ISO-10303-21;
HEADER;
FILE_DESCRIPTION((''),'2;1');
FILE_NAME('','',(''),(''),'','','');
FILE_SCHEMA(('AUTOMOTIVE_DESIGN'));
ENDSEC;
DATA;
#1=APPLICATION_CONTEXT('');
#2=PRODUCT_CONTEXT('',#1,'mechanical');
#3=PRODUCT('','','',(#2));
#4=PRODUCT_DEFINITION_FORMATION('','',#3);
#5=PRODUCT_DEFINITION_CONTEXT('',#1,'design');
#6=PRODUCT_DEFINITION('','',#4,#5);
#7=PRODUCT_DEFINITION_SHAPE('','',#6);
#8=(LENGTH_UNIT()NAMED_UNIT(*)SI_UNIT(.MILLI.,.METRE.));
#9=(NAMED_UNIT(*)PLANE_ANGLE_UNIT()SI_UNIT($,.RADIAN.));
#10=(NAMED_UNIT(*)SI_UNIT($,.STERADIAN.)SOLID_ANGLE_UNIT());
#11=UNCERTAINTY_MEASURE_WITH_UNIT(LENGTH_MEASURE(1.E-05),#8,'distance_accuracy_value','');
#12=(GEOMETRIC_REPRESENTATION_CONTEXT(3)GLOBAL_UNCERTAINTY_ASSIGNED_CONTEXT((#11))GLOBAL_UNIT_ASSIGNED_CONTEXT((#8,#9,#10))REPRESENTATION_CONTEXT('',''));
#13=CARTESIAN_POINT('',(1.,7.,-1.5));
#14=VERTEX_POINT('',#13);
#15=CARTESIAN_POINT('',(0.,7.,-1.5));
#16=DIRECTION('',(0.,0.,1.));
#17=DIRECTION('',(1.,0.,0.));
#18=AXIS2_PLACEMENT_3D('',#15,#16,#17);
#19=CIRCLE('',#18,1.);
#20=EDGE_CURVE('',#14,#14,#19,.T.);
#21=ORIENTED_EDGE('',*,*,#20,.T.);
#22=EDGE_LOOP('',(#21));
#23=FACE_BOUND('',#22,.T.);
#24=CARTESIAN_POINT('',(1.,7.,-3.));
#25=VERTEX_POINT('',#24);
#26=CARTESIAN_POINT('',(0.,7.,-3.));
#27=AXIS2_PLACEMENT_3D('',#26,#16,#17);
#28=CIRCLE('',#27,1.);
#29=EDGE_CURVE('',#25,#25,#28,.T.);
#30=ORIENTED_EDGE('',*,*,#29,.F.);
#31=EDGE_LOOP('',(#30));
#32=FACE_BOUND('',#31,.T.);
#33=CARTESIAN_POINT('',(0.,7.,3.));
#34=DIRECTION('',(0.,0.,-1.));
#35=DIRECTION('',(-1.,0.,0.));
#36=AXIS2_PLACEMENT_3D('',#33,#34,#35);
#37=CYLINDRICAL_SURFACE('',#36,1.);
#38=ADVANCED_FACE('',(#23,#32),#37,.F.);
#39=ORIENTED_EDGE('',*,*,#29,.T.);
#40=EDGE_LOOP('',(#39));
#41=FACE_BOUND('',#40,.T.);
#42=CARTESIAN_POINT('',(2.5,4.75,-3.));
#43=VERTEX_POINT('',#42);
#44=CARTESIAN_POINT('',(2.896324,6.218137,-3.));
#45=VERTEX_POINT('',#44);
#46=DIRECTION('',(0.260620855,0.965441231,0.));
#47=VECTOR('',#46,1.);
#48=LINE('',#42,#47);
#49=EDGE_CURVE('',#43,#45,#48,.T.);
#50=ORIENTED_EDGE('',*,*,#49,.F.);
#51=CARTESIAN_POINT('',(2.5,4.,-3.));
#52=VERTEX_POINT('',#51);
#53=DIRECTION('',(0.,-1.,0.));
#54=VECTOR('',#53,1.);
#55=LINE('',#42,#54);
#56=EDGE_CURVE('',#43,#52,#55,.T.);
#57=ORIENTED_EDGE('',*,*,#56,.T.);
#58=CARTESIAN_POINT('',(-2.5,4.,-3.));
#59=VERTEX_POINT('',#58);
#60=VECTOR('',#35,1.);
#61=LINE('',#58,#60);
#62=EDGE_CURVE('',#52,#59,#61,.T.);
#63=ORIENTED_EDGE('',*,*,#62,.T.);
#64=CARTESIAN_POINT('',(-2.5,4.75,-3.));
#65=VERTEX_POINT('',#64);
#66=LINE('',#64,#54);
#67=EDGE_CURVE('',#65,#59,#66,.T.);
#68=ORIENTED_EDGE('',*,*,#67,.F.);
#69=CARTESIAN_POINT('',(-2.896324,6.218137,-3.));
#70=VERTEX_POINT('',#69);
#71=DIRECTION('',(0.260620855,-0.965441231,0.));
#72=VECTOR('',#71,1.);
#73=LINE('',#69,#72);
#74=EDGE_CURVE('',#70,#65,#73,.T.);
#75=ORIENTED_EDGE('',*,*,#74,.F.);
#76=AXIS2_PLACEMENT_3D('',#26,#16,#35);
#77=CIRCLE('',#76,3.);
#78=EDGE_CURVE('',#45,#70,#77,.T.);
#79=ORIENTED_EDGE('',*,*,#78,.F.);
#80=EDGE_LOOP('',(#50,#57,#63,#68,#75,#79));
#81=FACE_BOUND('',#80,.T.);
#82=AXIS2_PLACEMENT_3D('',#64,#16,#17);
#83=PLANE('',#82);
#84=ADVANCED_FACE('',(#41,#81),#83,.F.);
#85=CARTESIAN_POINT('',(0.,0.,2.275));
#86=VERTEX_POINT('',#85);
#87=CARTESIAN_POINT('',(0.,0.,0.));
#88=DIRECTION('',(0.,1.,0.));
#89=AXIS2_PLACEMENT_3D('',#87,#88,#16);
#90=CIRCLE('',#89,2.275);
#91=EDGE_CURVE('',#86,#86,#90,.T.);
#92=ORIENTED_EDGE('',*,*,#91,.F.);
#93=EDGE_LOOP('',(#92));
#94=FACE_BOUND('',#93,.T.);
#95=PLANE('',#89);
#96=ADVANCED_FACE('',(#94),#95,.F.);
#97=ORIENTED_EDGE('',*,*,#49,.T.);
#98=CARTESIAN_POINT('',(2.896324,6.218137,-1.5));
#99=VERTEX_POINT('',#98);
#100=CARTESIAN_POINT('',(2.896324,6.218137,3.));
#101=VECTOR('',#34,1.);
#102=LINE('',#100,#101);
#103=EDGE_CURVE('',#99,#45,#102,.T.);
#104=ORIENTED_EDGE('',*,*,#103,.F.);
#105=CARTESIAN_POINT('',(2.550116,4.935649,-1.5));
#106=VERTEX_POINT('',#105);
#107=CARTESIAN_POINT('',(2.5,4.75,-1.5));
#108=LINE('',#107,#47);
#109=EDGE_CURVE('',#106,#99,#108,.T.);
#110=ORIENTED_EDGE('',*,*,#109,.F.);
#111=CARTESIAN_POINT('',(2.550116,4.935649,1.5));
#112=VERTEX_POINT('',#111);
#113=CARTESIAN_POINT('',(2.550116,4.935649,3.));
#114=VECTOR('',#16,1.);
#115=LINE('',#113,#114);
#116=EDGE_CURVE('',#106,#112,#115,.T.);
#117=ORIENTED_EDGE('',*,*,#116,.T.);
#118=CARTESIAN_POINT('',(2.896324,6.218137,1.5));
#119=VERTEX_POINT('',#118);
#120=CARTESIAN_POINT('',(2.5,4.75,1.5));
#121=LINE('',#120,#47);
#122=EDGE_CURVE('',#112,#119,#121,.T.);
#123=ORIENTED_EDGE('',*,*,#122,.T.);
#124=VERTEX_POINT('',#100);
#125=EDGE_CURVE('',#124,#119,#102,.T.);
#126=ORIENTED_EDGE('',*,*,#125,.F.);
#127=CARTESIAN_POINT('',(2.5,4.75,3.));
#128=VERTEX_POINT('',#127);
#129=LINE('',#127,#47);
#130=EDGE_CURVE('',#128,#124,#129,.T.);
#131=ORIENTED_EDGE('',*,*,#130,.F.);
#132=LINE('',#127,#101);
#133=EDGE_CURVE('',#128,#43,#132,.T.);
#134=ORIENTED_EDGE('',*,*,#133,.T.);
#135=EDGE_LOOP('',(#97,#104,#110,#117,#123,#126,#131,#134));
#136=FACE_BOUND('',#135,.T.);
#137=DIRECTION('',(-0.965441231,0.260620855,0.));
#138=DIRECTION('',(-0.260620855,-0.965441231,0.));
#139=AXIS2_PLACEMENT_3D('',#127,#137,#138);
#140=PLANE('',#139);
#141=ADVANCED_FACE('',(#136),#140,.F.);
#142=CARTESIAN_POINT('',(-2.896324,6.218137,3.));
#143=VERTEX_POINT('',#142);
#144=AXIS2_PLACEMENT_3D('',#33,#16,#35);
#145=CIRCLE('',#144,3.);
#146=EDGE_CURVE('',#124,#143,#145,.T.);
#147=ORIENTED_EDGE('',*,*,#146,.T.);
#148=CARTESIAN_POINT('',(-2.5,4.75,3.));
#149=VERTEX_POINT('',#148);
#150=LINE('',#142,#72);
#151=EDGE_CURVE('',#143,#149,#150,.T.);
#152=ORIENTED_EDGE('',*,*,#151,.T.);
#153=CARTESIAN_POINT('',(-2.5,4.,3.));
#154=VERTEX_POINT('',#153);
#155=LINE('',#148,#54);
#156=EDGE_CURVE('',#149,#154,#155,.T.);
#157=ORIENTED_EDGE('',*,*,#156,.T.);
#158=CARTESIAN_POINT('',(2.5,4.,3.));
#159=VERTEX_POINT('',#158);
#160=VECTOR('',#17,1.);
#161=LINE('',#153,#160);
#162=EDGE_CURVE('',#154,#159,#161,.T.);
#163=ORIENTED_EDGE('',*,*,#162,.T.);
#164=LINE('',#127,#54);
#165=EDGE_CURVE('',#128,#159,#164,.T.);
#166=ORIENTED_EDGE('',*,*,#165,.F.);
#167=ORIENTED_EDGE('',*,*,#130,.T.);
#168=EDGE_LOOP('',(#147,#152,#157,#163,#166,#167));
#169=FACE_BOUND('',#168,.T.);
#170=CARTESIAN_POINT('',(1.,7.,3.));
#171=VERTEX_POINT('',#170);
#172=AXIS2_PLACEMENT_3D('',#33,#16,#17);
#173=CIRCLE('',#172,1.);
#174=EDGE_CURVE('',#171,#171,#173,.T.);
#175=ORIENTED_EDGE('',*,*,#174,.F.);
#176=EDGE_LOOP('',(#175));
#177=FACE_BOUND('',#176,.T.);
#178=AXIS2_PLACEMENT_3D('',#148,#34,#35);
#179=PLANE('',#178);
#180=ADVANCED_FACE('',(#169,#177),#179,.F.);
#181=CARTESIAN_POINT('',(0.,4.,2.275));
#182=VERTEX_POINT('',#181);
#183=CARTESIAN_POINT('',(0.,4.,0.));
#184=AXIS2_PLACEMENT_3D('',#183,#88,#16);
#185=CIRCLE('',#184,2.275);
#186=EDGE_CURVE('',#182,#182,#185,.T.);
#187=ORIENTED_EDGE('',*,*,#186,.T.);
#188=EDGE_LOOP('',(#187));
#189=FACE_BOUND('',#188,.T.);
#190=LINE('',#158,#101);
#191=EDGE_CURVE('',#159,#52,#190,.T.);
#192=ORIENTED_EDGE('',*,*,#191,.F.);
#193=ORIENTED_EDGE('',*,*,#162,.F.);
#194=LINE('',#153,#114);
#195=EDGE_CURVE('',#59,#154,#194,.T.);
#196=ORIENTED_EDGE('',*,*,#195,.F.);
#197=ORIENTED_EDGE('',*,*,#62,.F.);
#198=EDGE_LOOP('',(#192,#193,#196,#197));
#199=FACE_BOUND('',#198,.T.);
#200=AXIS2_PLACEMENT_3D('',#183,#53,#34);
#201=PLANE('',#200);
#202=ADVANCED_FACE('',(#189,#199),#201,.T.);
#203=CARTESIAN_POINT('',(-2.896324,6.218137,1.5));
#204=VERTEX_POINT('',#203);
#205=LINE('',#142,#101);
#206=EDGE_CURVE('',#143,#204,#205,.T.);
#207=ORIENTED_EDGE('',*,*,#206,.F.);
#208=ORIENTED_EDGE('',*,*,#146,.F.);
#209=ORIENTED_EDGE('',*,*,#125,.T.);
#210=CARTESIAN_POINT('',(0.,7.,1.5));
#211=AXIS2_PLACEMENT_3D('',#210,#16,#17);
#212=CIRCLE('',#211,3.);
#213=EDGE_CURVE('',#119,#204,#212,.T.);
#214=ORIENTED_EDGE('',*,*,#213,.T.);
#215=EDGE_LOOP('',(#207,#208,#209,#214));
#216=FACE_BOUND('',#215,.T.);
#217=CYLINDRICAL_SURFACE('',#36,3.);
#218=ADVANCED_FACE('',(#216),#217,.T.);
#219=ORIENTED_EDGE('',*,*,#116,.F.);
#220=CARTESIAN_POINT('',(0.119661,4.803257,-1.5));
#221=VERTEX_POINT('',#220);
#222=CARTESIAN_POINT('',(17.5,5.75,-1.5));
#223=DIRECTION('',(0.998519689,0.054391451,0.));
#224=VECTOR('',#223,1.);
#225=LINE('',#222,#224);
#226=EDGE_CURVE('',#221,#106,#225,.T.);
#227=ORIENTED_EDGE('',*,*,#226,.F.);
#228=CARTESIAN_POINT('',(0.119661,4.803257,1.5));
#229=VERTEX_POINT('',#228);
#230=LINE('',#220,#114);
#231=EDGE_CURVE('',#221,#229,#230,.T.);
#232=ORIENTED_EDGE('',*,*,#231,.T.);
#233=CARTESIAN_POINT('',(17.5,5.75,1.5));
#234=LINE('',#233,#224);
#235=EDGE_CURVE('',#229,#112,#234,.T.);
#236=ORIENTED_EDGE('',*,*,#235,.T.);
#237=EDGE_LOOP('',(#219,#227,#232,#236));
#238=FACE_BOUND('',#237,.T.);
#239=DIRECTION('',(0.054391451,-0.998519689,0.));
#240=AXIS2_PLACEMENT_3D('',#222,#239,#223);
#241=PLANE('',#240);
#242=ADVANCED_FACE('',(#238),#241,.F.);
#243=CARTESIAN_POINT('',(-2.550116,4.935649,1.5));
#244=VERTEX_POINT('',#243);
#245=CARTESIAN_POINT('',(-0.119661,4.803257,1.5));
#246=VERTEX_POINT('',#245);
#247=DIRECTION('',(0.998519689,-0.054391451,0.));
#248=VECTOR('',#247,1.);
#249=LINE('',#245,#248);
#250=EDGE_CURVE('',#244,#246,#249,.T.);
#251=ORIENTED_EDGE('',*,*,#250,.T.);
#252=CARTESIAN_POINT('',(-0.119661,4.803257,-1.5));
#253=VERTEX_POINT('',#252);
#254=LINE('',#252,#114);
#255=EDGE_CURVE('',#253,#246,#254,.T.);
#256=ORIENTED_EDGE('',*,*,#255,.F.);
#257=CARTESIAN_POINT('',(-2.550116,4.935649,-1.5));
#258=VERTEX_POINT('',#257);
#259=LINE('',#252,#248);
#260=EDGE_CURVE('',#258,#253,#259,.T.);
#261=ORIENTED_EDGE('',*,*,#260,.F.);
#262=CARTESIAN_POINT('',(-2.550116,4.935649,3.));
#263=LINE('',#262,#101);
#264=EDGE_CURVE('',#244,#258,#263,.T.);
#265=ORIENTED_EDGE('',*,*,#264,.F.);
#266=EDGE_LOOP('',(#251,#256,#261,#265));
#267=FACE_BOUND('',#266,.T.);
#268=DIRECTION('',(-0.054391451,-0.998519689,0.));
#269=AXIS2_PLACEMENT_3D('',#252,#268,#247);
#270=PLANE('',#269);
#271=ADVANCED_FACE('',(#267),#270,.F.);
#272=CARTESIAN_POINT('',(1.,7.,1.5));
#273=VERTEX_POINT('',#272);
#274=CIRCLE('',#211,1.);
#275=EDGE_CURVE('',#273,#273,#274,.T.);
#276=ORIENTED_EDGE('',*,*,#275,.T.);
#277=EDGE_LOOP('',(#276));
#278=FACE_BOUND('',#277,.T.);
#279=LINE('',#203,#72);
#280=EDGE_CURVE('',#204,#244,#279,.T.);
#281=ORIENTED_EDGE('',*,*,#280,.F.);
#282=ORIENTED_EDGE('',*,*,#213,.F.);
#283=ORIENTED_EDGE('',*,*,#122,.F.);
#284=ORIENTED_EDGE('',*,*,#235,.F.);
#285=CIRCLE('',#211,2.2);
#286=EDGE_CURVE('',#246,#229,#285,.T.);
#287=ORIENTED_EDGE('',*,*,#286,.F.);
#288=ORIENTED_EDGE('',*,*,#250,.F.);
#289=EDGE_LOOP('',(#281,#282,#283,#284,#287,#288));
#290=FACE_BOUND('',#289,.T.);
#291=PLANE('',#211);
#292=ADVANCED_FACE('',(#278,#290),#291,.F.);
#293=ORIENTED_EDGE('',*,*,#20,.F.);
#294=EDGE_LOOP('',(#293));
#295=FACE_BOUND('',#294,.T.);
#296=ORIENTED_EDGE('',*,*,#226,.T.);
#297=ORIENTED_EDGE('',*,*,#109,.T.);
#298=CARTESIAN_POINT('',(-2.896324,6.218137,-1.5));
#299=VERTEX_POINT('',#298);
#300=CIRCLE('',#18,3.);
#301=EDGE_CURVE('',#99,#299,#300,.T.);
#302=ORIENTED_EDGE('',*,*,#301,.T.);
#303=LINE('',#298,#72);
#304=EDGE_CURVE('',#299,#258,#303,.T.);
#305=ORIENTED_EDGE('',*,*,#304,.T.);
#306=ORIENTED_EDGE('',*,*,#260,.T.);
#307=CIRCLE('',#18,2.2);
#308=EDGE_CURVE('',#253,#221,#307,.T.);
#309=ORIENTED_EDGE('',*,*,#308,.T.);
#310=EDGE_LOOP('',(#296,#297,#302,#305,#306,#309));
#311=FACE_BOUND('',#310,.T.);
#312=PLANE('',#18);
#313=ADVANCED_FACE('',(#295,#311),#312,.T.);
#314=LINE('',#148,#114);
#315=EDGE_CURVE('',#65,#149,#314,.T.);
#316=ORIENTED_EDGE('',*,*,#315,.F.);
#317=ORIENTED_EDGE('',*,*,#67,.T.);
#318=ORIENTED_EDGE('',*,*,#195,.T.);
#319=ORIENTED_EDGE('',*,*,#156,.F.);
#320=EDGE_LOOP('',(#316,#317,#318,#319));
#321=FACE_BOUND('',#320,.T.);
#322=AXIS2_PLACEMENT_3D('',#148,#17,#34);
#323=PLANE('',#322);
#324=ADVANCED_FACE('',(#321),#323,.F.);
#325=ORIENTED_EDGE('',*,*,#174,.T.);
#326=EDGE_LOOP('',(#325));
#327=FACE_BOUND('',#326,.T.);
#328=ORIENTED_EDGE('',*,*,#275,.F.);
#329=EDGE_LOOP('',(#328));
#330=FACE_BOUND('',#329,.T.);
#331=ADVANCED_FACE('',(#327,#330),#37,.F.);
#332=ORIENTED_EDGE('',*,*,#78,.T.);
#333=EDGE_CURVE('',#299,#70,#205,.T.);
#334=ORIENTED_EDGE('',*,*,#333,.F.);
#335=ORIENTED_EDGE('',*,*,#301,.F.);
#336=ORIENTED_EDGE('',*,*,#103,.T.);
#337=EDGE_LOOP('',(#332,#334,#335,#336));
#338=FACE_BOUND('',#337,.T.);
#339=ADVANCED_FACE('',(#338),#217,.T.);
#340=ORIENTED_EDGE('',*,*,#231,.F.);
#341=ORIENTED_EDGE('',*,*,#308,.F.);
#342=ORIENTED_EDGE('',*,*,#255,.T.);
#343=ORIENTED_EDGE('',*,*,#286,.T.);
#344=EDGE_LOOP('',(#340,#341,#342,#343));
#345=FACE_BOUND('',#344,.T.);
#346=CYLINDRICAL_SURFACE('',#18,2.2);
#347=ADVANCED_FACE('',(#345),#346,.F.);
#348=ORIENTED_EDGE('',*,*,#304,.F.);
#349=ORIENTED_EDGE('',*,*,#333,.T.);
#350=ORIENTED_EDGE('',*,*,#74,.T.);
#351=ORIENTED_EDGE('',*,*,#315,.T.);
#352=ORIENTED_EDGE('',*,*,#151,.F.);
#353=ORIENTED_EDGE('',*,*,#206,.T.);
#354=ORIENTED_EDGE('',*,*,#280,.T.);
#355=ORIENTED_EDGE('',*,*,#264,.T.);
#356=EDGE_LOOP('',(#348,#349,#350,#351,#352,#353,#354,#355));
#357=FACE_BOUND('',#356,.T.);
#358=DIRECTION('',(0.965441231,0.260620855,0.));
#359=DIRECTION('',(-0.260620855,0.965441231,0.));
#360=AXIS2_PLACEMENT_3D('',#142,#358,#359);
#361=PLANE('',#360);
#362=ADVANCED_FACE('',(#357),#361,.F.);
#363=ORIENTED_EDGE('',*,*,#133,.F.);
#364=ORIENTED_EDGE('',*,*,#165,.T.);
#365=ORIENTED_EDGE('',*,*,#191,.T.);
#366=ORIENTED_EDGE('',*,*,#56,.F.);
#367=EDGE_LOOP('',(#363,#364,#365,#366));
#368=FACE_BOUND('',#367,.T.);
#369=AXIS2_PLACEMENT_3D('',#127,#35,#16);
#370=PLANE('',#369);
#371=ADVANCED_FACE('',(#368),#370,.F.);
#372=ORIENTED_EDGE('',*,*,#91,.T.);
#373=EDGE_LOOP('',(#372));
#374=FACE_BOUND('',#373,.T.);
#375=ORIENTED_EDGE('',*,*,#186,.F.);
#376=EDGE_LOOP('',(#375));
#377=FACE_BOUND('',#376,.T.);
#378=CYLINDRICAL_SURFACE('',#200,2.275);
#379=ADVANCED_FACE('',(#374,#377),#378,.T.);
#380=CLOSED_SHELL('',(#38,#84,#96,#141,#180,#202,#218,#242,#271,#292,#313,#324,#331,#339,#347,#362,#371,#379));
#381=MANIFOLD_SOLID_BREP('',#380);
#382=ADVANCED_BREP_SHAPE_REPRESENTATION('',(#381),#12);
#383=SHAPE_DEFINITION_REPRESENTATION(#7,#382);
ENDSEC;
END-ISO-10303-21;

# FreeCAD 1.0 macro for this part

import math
import FreeCAD as App
import Part
import Sketcher
Q = App.Units.Quantity


def add_polygon(sketch, points):
    """Adds a closed chain of lines whose ends are joined by coincident constraints."""
    first, n = sketch.GeometryCount, len(points)
    for a, b in zip(points, points[1:] + points[:1]):
        sketch.addGeometry(Part.LineSegment(App.Vector(*a, 0), App.Vector(*b, 0)), False)
    for i in range(n):
        sketch.addConstraint(Sketcher.Constraint("Coincident", first + i, 2, first + (i + 1) % n, 1))

doc = App.newDocument("Part")
params = doc.addObject("Spreadsheet::Sheet", "Params")
for row, (alias, value) in enumerate([
    ("sketch1_diameter", "4.55 mm"),
    ("pad1_length", "4 mm"),
    ("sketch2_width", "5 mm"),
    ("sketch2_height", "6 mm"),
    ("pad2_length", "0.75 mm"),
    ("sketch3_diameter", "2 mm"),
    ("sketch3_radius", "3 mm"),
    ("sketch3_width", "5 mm"),
    ("pad3_length", "6 mm"),
    ("sketch4_radius", "2.2 mm"),
    ("sketch4_width", "35 mm"),
    ("pocket1_length", "3 mm"),
], start=1):
    params.set(f"A{row}", alias)
    params.set(f"B{row}", "=" + value)
    params.setAlias(f"B{row}", alias)

body = doc.addObject("PartDesign::Body", "Body")

# Sketch on XZ plane
sketch1 = body.newObject("Sketcher::SketchObject", "Sketch")
sketch1.AttachmentSupport = (doc.getObject("XZ_Plane"), [""])
sketch1.MapMode = "FlatFace"
sketch1.addGeometry(Part.Circle(App.Vector(0, 0, 0), App.Vector(0, 0, 1), 2.275), False)
sketch1.addConstraint([
    Sketcher.Constraint("Coincident", 0, 3, -1, 1),
    Sketcher.Constraint("Diameter", 0, Q("4.55 mm")),
])
sketch1.setExpression("Constraints[1]", "Params.sketch1_diameter")
pad1 = body.newObject("PartDesign::Pad", "Pad")
pad1.Profile = sketch1
pad1.setExpression("Length", "Params.pad1_length")
pad1.Reversed = True

# Sketch on XZ plane
sketch2 = body.newObject("Sketcher::SketchObject", "Sketch001")
sketch2.AttachmentSupport = (doc.getObject("XZ_Plane"), [""])
sketch2.MapMode = "FlatFace"
sketch2.AttachmentOffset = App.Placement(App.Vector(0, 0, -4), App.Rotation())
add_polygon(sketch2, [(-2.5, -3), (-2.5, 3), (2.5, 3), (2.5, -3)])  # lines 0-3
sketch2.addConstraint([
    Sketcher.Constraint("Vertical", 0),
    Sketcher.Constraint("Horizontal", 1),
    Sketcher.Constraint("Vertical", 2),
    Sketcher.Constraint("Horizontal", 3),
    Sketcher.Constraint("Symmetric", 0, 2, 2, 2, -1, 1),
    Sketcher.Constraint("DistanceX", 1, 1, 1, 2, Q("5 mm")),
    Sketcher.Constraint("DistanceY", 0, 1, 0, 2, Q("6 mm")),
])
sketch2.setExpression("Constraints[9]", "Params.sketch2_width")
sketch2.setExpression("Constraints[10]", "Params.sketch2_height")
pad2 = body.newObject("PartDesign::Pad", "Pad001")
pad2.Profile = sketch2
pad2.setExpression("Length", "Params.pad2_length")
pad2.Reversed = True

# Sketch on XY plane
sketch3 = body.newObject("Sketcher::SketchObject", "Sketch002")
sketch3.AttachmentSupport = (doc.getObject("XY_Plane"), [""])
sketch3.MapMode = "FlatFace"
sketch3.addGeometry([
    Part.LineSegment(App.Vector(-2.896324, 6.218137, 0), App.Vector(-2.5, 4.75, 0)),  # 0
    Part.LineSegment(App.Vector(-2.5, 4.75, 0), App.Vector(2.5, 4.75, 0)),  # 1
    Part.LineSegment(App.Vector(2.5, 4.75, 0), App.Vector(2.896324, 6.218137, 0)),  # 2
    Part.ArcOfCircle(Part.Circle(App.Vector(0, 7, 0), App.Vector(0, 0, 1), 3), math.radians(-15.106905), math.radians(195.106905)),  # 3
    Part.Circle(App.Vector(0, 7, 0), App.Vector(0, 0, 1), 1),  # 4
], False)
sketch3.addConstraint([
    Sketcher.Constraint("Coincident", 0, 2, 1, 1),
    Sketcher.Constraint("Coincident", 1, 2, 2, 1),
    Sketcher.Constraint("Tangent", 2, 2, 3, 1),
    Sketcher.Constraint("Tangent", 3, 2, 0, 1),
    Sketcher.Constraint("Horizontal", 1),
    Sketcher.Constraint("Coincident", 4, 3, 3, 3),
    Sketcher.Constraint("Symmetric", 2, 2, 3, 2, -2),
    Sketcher.Constraint("Diameter", 4, Q("2 mm")),
    Sketcher.Constraint("Radius", 3, Q("3 mm")),
    Sketcher.Constraint("DistanceX", 1, 1, 1, 2, Q("5 mm")),
    Sketcher.Constraint("DistanceY", -1, 1, 3, 3, Q("7 mm")),
    Sketcher.Constraint("DistanceY", -1, 1, 0, 2, Q("4.75 mm")),
])
sketch3.setExpression("Constraints[7]", "Params.sketch3_diameter")
sketch3.setExpression("Constraints[8]", "Params.sketch3_radius")
sketch3.setExpression("Constraints[9]", "Params.sketch3_width")
pad3 = body.newObject("PartDesign::Pad", "Pad002")
pad3.Profile = sketch3
pad3.setExpression("Length", "Params.pad3_length")
pad3.Midplane = True

# Sketch on XY plane
sketch4 = body.newObject("Sketcher::SketchObject", "Sketch003")
sketch4.AttachmentSupport = (doc.getObject("XY_Plane"), [""])
sketch4.MapMode = "FlatFace"
sketch4.addGeometry([
    Part.LineSegment(App.Vector(-17.5, 5.75, 0), App.Vector(-0.119661, 4.803257, 0)),  # 0
    Part.ArcOfCircle(Part.Circle(App.Vector(0, 7, 0), App.Vector(0, 0, 1), 2.2), math.radians(-93.117939), math.radians(-86.882061)),  # 1
    Part.LineSegment(App.Vector(0.119661, 4.803257, 0), App.Vector(17.5, 5.75, 0)),  # 2
    Part.LineSegment(App.Vector(17.5, 5.75, 0), App.Vector(17.5, 11.234269, 0)),  # 3
    Part.LineSegment(App.Vector(17.5, 11.234269, 0), App.Vector(-17.5, 11.234269, 0)),  # 4
    Part.LineSegment(App.Vector(-17.5, 11.234269, 0), App.Vector(-17.5, 5.75, 0)),  # 5
], False)
sketch4.addConstraint([
    Sketcher.Constraint("Tangent", 0, 2, 1, 1),
    Sketcher.Constraint("Tangent", 1, 2, 2, 1),
    Sketcher.Constraint("Coincident", 2, 2, 3, 1),
    Sketcher.Constraint("Coincident", 3, 2, 4, 1),
    Sketcher.Constraint("Coincident", 4, 2, 5, 1),
    Sketcher.Constraint("Coincident", 5, 2, 0, 1),
    Sketcher.Constraint("Vertical", 3),
    Sketcher.Constraint("Horizontal", 4),
    Sketcher.Constraint("Vertical", 5),
    Sketcher.Constraint("Symmetric", 0, 2, 1, 2, -2),
    Sketcher.Constraint("Horizontal", 2, 2, 5, 2),
    Sketcher.Constraint("Radius", 1, Q("2.2 mm")),
    Sketcher.Constraint("DistanceX", 4, 2, 4, 1, Q("35 mm")),
    Sketcher.Constraint("DistanceY", -1, 1, 1, 3, Q("7 mm")),
    Sketcher.Constraint("DistanceY", -1, 1, 2, 2, Q("5.75 mm")),
    Sketcher.Constraint("DistanceY", 3, 1, 3, 2, Q("5.484269 mm")),
])
sketch4.setExpression("Constraints[11]", "Params.sketch4_radius")
sketch4.setExpression("Constraints[12]", "Params.sketch4_width")
pocket1 = body.newObject("PartDesign::Pocket", "Pocket")
pocket1.Profile = sketch4
pocket1.setExpression("Length", "Params.pocket1_length")
pocket1.Midplane = True

doc.recompute()
